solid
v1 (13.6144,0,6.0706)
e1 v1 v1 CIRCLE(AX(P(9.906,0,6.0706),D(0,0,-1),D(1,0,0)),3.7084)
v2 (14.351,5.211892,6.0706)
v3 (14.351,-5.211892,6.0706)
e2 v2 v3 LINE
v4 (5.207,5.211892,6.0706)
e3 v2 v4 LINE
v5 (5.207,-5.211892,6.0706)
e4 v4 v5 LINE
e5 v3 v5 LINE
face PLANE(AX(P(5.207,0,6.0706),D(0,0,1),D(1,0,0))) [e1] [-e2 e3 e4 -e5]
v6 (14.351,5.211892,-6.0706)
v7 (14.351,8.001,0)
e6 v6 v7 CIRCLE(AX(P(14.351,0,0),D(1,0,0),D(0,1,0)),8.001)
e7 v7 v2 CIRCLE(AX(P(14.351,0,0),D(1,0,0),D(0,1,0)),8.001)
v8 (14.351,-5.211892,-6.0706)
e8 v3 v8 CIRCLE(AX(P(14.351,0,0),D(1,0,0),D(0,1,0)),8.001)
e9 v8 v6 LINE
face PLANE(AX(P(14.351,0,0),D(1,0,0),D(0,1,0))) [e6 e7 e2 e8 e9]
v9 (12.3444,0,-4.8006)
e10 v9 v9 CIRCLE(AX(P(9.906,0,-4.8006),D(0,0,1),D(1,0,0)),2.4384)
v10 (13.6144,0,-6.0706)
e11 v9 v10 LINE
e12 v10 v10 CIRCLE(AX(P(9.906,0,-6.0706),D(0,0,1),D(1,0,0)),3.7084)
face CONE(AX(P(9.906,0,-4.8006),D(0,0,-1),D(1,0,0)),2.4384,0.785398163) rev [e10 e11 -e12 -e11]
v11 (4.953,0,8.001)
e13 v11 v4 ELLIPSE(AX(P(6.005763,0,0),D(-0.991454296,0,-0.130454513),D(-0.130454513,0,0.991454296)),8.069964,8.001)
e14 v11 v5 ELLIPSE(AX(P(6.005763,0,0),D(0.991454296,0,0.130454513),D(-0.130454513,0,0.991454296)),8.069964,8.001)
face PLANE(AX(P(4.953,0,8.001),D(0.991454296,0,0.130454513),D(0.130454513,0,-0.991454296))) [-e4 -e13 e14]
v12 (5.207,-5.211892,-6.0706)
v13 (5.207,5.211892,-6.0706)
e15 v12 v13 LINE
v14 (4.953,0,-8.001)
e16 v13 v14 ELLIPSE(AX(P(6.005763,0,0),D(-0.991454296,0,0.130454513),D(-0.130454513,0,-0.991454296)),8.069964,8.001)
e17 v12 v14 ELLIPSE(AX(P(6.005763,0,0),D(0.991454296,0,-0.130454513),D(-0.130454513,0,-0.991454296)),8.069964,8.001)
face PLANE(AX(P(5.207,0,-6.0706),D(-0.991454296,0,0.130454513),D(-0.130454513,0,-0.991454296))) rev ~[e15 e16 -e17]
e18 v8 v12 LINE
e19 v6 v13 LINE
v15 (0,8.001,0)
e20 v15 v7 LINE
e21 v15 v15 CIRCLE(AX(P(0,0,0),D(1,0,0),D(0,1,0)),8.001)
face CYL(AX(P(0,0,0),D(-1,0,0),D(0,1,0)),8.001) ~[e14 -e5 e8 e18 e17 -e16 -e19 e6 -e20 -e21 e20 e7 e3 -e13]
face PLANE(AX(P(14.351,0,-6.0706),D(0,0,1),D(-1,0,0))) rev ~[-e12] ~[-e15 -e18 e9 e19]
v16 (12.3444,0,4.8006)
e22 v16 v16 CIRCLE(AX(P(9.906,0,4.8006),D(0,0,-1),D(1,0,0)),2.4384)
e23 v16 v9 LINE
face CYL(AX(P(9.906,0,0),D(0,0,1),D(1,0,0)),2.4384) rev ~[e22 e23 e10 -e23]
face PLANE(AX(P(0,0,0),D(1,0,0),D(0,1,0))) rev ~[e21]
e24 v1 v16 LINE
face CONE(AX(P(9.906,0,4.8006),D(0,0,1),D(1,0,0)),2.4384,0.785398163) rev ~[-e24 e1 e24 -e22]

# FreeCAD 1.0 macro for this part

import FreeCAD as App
import Part
import Sketcher

V = App.Vector
Q = App.Units.Quantity


def edges_at(feature, points):
    """Names of the edges that pass closest to the given points."""
    edges = feature.Shape.Edges
    near = lambda p: min(range(len(edges)), key=lambda i: edges[i].distToShape(Part.Vertex(*p))[0])
    return sorted({f"Edge{near(p) + 1}" for p in points})

doc = App.newDocument("Part")
params = doc.addObject("Spreadsheet::Sheet", "Params")
for row, (alias, value) in enumerate([
    ("sketch1_diameter", "0.63 in"),
    ("pad1_length", "0.565 in"),
    ("sketch2_width", "0.37 in"),
    ("sketch2_width2", "0.36 in"),
    ("sketch2_height", "0.076 in"),
    ("sketch3_diameter", "0.192 in"),
    ("chamfer_size", "0.05 in"),
], start=1):
    params.set(f"A{row}", alias)
    params.set(f"B{row}", "=" + value)
    params.setAlias(f"B{row}", alias)

body = doc.addObject("PartDesign::Body", "Body")

# Sketch on YZ plane
sketch1 = doc.addObject("Sketcher::SketchObject", "Sketch")
body.addObject(sketch1)
sketch1.AttachmentSupport = (doc.YZ_Plane, [""])
sketch1.MapMode = "FlatFace"
sketch1.addGeometry(Part.Circle(V(0, 0, 0), V(0, 0, 1), 8), False)
sketch1.addConstraint([
    Sketcher.Constraint("Coincident", 0, 3, -1, 1),
    Sketcher.Constraint("Diameter", 0, Q("0.63 in")),
])
sketch1.setExpression("Constraints[1]", "Params.sketch1_diameter")
pad1 = doc.addObject("PartDesign::Pad", "Pad")
body.addObject(pad1)
pad1.Profile = sketch1
pad1.setExpression("Length", "Params.pad1_length")

# Sketch on XZ plane
sketch2 = doc.addObject("Sketcher::SketchObject", "Sketch001")
body.addObject(sketch2)
sketch2.AttachmentSupport = (doc.XZ_Plane, [""])
sketch2.MapMode = "FlatFace"
sketch2.addGeometry([
    Part.LineSegment(V(14.4, 8, 0), V(5, 8, 0)),  # 0
    Part.LineSegment(V(5, 8, 0), V(5.2, 6.1, 0)),  # 1
    Part.LineSegment(V(5.2, 6.1, 0), V(14.4, 6.1, 0)),  # 2
    Part.LineSegment(V(14.4, 6.1, 0), V(14.4, 8, 0)),  # 3
    Part.LineSegment(V(5, -8, 0), V(14.4, -8, 0)),  # 4
    Part.LineSegment(V(14.4, -8, 0), V(14.4, -6.1, 0)),  # 5
    Part.LineSegment(V(14.4, -6.1, 0), V(5.2, -6.1, 0)),  # 6
    Part.LineSegment(V(5.2, -6.1, 0), V(5, -8, 0)),  # 7
], False)
sketch2.addConstraint([
    Sketcher.Constraint("Coincident", 0, 2, 1, 1),
    Sketcher.Constraint("Coincident", 1, 2, 2, 1),
    Sketcher.Constraint("Coincident", 2, 2, 3, 1),
    Sketcher.Constraint("Coincident", 3, 2, 0, 1),
    Sketcher.Constraint("Coincident", 4, 2, 5, 1),
    Sketcher.Constraint("Coincident", 5, 2, 6, 1),
    Sketcher.Constraint("Coincident", 6, 2, 7, 1),
    Sketcher.Constraint("Coincident", 7, 2, 4, 1),
    Sketcher.Constraint("Horizontal", 0),
    Sketcher.Constraint("Horizontal", 2),
    Sketcher.Constraint("Vertical", 3),
    Sketcher.Constraint("Horizontal", 4),
    Sketcher.Constraint("Vertical", 5),
    Sketcher.Constraint("Horizontal", 6),
    Sketcher.Constraint("Symmetric", 3, 2, 4, 2, -1),
    Sketcher.Constraint("Symmetric", 1, 2, 6, 2, -1),
    Sketcher.Constraint("Vertical", 0, 2, 7, 2),
    Sketcher.Constraint("DistanceX", 0, 2, 0, 1, Q("0.37 in")),
    Sketcher.Constraint("DistanceX", 2, 1, 2, 2, Q("0.36 in")),
    Sketcher.Constraint("DistanceY", 3, 1, 3, 2, Q("0.076 in")),
    Sketcher.Constraint("DistanceY", 4, 2, 3, 2, Q("0.63 in")),
    Sketcher.Constraint("DistanceX", -1, 1, 0, 2, Q("0.195 in")),
])
sketch2.setExpression("Constraints[17]", "Params.sketch2_width")
sketch2.setExpression("Constraints[18]", "Params.sketch2_width2")
sketch2.setExpression("Constraints[19]", "Params.sketch2_height")
pocket1 = doc.addObject("PartDesign::Pocket", "Pocket")
body.addObject(pocket1)
pocket1.Profile = sketch2
pocket1.Type = "ThroughAll"
pocket1.Midplane = True

# Sketch on XY plane
sketch3 = doc.addObject("Sketcher::SketchObject", "Sketch002")
body.addObject(sketch3)
sketch3.AttachmentSupport = (doc.XY_Plane, [""])
sketch3.MapMode = "FlatFace"
sketch3.addGeometry(Part.Circle(V(9.9, 0, 0), V(0, 0, 1), 2.4), False)
sketch3.addConstraint([
    Sketcher.Constraint("PointOnObject", 0, 3, -1),
    Sketcher.Constraint("Diameter", 0, Q("0.192 in")),
    Sketcher.Constraint("DistanceX", -1, 1, 0, 3, Q("0.39 in")),
])
sketch3.setExpression("Constraints[1]", "Params.sketch3_diameter")
pocket2 = doc.addObject("PartDesign::Pocket", "Pocket001")
body.addObject(pocket2)
pocket2.Profile = sketch3
pocket2.Type = "ThroughAll"
pocket2.Midplane = True
doc.recompute()

chamfer = doc.addObject("PartDesign::Chamfer", "Chamfer")
body.addObject(chamfer)
chamfer.Base = (pocket2, edges_at(pocket2, [(7.468, 0, 6.071), (7.468, 0, -6.071)]))
chamfer.setExpression("Size", "Params.chamfer_size")

doc.recompute()
